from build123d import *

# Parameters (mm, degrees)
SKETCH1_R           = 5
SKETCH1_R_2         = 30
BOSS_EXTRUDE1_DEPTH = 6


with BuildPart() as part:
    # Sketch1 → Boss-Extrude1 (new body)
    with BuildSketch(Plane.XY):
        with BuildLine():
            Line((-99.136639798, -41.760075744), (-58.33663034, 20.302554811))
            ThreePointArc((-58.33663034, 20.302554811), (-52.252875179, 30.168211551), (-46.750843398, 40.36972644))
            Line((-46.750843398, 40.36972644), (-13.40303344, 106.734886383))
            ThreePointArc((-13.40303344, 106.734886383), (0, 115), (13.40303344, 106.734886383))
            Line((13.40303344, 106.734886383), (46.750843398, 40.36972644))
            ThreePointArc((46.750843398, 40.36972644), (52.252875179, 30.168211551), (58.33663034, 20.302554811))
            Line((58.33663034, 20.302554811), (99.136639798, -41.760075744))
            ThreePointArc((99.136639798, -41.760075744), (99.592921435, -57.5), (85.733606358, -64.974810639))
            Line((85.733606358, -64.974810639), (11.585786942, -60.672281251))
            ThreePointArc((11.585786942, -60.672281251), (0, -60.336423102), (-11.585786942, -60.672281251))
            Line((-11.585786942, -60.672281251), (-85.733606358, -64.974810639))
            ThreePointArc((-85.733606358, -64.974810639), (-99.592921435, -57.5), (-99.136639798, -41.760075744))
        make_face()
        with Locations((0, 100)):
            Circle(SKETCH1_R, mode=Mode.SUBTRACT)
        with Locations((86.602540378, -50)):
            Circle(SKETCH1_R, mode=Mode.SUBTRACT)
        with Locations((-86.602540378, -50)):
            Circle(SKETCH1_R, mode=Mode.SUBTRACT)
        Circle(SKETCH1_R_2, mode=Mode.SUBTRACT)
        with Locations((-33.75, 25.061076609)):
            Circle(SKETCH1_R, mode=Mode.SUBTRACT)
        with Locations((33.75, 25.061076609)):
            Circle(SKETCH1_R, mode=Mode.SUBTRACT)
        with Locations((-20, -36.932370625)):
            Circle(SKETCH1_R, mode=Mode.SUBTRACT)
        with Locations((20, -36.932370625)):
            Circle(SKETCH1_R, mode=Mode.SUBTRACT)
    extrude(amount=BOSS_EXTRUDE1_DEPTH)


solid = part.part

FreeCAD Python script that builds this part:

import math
import FreeCAD as App
import Part
import Sketcher

doc = App.newDocument("Part")
body = doc.addObject("PartDesign::Body", "Body")

sketch1 = doc.addObject("Sketcher::SketchObject", "Sketch")
body.addObject(sketch1)
sketch1.AttachmentSupport = (doc.XY_Plane, [""])
sketch1.MapMode = "FlatFace"
sketch1.addGeometry([
    Part.LineSegment(App.Vector(-58, 20, 0), App.Vector(-99, -42, 0)),
    Part.ArcOfCircle(Part.Circle(App.Vector(-87, -50, 0), App.Vector(0, 0, 1), 15), math.radians(147), math.radians(273)),
    Part.LineSegment(App.Vector(-86, -65, 0), App.Vector(-12, -61, 0)),
    Part.ArcOfCircle(Part.Circle(App.Vector(0, -260, 0), App.Vector(0, 0, 1), 200), math.radians(86.68), math.radians(93.32)),
    Part.LineSegment(App.Vector(12, -61, 0), App.Vector(86, -65, 0)),
    Part.ArcOfCircle(Part.Circle(App.Vector(87, -50, 0), App.Vector(0, 0, 1), 15), math.radians(-93), math.radians(33)),
    Part.LineSegment(App.Vector(99, -42, 0), App.Vector(58, 20, 0)),
    Part.ArcOfCircle(Part.Circle(App.Vector(225, 130, 0), App.Vector(0, 0, 1), 200), math.radians(-153.32), math.radians(-146.68)),
    Part.LineSegment(App.Vector(47, 40, 0), App.Vector(13, 107, 0)),
    Part.ArcOfCircle(Part.Circle(App.Vector(0, 100, 0), App.Vector(0, 0, 1), 15), math.radians(27), math.radians(153)),
    Part.LineSegment(App.Vector(-13, 107, 0), App.Vector(-47, 40, 0)),
    Part.ArcOfCircle(Part.Circle(App.Vector(-225, 130, 0), App.Vector(0, 0, 1), 200), math.radians(-33.32), math.radians(-26.68)),
    Part.Circle(App.Vector(87, -50, 0), App.Vector(0, 0, 1), 5),
    Part.Circle(App.Vector(20, -37, 0), App.Vector(0, 0, 1), 5),
    Part.Circle(App.Vector(-20, -37, 0), App.Vector(0, 0, 1), 5),
    Part.Circle(App.Vector(-87, -50, 0), App.Vector(0, 0, 1), 5),
    Part.Circle(App.Vector(0, 0, 0), App.Vector(0, 0, 1), 30),
    Part.Circle(App.Vector(34, 25, 0), App.Vector(0, 0, 1), 5),
    Part.Circle(App.Vector(-34, 25, 0), App.Vector(0, 0, 1), 5),
    Part.Circle(App.Vector(0, 100, 0), App.Vector(0, 0, 1), 5),
], False)
sketch1.addConstraint([
    Sketcher.Constraint("Tangent", 0, 2, 1, 1),
    Sketcher.Constraint("Tangent", 1, 2, 2, 1),
    Sketcher.Constraint("Tangent", 2, 2, 3, 2),
    Sketcher.Constraint("Tangent", 3, 1, 4, 1),
    Sketcher.Constraint("Tangent", 4, 2, 5, 1),
    Sketcher.Constraint("Tangent", 5, 2, 6, 1),
    Sketcher.Constraint("Tangent", 6, 2, 7, 2),
    Sketcher.Constraint("Tangent", 7, 1, 8, 1),
    Sketcher.Constraint("Tangent", 8, 2, 9, 1),
    Sketcher.Constraint("Tangent", 9, 2, 10, 1),
    Sketcher.Constraint("Tangent", 10, 2, 11, 2),
    Sketcher.Constraint("Tangent", 11, 1, 0, 1),
    Sketcher.Constraint("Coincident", 16, 3, -1, 1),
    Sketcher.Constraint("Coincident", 12, 3, 5, 3),
    Sketcher.Constraint("Coincident", 15, 3, 1, 3),
    Sketcher.Constraint("Coincident", 19, 3, 9, 3),
    Sketcher.Constraint("Equal", 1, 5),
    Sketcher.Constraint("Equal", 3, 7),
    Sketcher.Constraint("Equal", 5, 9),
    Sketcher.Constraint("Equal", 7, 11),
    Sketcher.Constraint("Equal", 12, 13),
    Sketcher.Constraint("Equal", 13, 14),
    Sketcher.Constraint("Equal", 14, 15),
    Sketcher.Constraint("Equal", 15, 17),
    Sketcher.Constraint("Equal", 17, 18),
    Sketcher.Constraint("Equal", 18, 19),
    Sketcher.Constraint("Symmetric", 1, 3, 5, 3, -2),
    Sketcher.Constraint("Symmetric", 7, 3, 11, 3, -2),
    Sketcher.Constraint("Symmetric", 13, 3, 14, 3, -2),
    Sketcher.Constraint("Symmetric", 17, 3, 18, 3, -2),
    Sketcher.Constraint("PointOnObject", 3, 3, -2),
    Sketcher.Constraint("PointOnObject", 9, 3, -2),
    Sketcher.Constraint("Equal", 0, 2),
    Sketcher.Constraint("Equal", 6, 8),
    Sketcher.Constraint("Diameter", 12, 10.0),
    Sketcher.Constraint("Diameter", 16, 60.0),
    Sketcher.Constraint("Radius", 1, 15.0),
    Sketcher.Constraint("Radius", 3, 200.0),
    Sketcher.Constraint("DistanceY", 1, 3, -1, 1, 50.0),
    Sketcher.Constraint("DistanceY", -1, 1, 9, 3, 100.0),
    Sketcher.Constraint("DistanceX", -1, 1, 13, 3, 20.0),
    Sketcher.Constraint("DistanceX", 18, 3, 17, 3, 67.5),
    Sketcher.Constraint("DistanceX", 0, 2, 1, 3, 12.534099),
    Sketcher.Constraint("DistanceX", 1, 3, -1, 1, 86.60254),
    Sketcher.Constraint("DistanceY", 13, 3, -1, 1, 36.932371),
    Sketcher.Constraint("DistanceY", 6, 2, 17, 3, 4.758522),
])
pad1 = doc.addObject("PartDesign::Pad", "Pad")
body.addObject(pad1)
pad1.Profile = sketch1
pad1.Length = 6

doc.recompute()
